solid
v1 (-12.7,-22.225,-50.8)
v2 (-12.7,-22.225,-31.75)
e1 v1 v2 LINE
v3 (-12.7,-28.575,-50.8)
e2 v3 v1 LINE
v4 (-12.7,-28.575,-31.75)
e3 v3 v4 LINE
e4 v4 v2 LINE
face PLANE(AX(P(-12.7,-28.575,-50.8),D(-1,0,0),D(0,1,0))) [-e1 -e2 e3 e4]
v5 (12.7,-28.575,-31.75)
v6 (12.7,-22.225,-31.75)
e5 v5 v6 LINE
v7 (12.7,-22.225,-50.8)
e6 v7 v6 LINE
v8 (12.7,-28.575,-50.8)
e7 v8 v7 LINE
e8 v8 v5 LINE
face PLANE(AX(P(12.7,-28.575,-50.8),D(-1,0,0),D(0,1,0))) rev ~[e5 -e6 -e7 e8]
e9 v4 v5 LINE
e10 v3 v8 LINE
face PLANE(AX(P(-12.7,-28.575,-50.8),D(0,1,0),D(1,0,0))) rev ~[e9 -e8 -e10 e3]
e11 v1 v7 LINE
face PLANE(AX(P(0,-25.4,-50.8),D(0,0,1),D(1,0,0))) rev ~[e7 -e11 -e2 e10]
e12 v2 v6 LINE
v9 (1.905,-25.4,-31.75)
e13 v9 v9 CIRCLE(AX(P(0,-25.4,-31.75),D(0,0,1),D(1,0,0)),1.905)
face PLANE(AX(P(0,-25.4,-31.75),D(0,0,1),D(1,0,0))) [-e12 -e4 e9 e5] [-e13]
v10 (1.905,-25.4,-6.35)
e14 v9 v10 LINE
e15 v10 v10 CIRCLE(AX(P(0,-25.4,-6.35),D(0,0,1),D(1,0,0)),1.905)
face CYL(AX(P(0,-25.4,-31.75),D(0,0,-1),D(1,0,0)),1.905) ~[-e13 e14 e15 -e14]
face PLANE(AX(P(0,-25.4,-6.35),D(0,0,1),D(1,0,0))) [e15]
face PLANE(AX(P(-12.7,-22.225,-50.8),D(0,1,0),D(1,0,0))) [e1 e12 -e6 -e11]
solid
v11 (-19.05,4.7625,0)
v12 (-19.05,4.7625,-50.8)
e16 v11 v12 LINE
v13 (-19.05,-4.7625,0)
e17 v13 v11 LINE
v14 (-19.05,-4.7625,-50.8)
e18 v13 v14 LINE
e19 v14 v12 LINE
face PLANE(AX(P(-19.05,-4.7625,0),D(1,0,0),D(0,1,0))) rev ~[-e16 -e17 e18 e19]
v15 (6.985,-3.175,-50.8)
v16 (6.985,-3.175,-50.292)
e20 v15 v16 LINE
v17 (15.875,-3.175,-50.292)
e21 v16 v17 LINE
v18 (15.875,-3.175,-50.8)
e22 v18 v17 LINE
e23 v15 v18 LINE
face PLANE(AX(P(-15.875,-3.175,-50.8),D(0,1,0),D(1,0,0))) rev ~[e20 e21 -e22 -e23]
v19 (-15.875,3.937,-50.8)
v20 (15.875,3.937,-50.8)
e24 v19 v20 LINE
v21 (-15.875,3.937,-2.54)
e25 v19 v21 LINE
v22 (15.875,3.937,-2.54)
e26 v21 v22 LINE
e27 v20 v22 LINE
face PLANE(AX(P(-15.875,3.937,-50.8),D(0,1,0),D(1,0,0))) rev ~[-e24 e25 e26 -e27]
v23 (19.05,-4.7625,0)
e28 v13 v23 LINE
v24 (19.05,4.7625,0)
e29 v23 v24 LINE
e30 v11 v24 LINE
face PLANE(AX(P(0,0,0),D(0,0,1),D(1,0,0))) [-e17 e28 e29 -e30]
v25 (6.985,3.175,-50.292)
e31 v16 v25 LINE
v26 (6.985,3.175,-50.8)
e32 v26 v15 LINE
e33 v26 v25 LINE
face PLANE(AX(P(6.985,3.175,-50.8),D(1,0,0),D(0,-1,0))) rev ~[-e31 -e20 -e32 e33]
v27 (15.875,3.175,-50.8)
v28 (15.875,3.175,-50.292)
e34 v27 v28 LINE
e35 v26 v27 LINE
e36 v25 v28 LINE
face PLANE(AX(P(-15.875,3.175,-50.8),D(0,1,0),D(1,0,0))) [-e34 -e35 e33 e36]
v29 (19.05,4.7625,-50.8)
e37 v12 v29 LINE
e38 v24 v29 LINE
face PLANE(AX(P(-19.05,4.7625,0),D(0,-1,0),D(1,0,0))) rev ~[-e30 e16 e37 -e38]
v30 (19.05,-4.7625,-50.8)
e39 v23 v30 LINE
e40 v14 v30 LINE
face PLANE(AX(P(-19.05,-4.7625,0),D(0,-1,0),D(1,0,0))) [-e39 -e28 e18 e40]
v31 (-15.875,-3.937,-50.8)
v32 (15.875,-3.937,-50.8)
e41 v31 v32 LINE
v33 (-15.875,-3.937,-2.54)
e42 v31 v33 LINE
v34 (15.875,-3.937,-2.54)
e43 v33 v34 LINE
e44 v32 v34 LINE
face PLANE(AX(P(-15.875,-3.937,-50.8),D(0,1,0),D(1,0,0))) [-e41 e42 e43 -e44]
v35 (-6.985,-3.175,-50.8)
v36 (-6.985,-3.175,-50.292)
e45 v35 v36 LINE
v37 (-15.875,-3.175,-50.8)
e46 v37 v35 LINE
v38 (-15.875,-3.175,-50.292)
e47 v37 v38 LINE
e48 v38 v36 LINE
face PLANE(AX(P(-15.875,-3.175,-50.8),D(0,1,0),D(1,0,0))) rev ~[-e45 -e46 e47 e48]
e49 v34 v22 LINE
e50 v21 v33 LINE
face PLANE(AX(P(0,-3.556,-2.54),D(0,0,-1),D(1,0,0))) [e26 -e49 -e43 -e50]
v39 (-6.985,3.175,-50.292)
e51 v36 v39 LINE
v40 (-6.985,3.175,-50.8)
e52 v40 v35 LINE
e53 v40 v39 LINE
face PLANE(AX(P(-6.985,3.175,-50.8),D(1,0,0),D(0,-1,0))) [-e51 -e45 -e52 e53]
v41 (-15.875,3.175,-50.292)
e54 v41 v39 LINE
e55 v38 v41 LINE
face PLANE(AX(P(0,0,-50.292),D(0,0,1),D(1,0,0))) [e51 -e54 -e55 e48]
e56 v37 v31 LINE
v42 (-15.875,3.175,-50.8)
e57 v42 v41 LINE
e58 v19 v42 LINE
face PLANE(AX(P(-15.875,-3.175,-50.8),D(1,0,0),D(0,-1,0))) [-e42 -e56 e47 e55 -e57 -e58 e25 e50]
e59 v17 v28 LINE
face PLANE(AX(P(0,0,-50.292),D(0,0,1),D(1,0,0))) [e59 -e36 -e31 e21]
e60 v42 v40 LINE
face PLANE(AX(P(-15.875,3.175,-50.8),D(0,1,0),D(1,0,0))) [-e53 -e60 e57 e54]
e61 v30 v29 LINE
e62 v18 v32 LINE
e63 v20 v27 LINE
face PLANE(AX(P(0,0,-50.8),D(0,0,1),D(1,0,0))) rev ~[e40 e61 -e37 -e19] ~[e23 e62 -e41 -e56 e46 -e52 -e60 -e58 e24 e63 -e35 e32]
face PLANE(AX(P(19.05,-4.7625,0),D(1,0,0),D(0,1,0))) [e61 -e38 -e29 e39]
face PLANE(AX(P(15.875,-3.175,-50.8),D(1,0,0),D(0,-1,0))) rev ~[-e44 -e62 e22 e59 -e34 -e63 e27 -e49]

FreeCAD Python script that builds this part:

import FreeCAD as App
import Part
import Sketcher
Q = App.Units.Quantity

doc = App.newDocument("Part")
body = doc.addObject("PartDesign::Body", "Body")

sketch1 = body.newObject("Sketcher::SketchObject", "Sketch")
sketch1.AttachmentSupport = (doc.getObject("XY_Plane"), [""])
sketch1.MapMode = "FlatFace"
sketch1.addGeometry([
    Part.LineSegment(App.Vector(-19, 5, 0), App.Vector(-19, -5, 0)),
    Part.LineSegment(App.Vector(-19, -5, 0), App.Vector(19, -5, 0)),
    Part.LineSegment(App.Vector(19, -5, 0), App.Vector(19, 5, 0)),
    Part.LineSegment(App.Vector(19, 5, 0), App.Vector(-19, 5, 0)),
], False)
sketch1.addConstraint([
    Sketcher.Constraint("Coincident", 0, 2, 1, 1),
    Sketcher.Constraint("Coincident", 1, 2, 2, 1),
    Sketcher.Constraint("Coincident", 2, 2, 3, 1),
    Sketcher.Constraint("Coincident", 3, 2, 0, 1),
    Sketcher.Constraint("Vertical", 0),
    Sketcher.Constraint("Horizontal", 1),
    Sketcher.Constraint("Vertical", 2),
    Sketcher.Constraint("Horizontal", 3),
    Sketcher.Constraint("Symmetric", 0, 2, 2, 2, -1, 1),
    Sketcher.Constraint("DistanceX", 1, 1, 1, 2, Q("1.5 in")),
    Sketcher.Constraint("DistanceY", 0, 2, 0, 1, Q("0.375 in")),
])
pad1 = body.newObject("PartDesign::Pad", "Pad")
pad1.Profile = sketch1
pad1.Length = Q("2 in")
pad1.Reversed = True

sketch2 = body.newObject("Sketcher::SketchObject", "Sketch001")
sketch2.AttachmentSupport = (doc.getObject("XY_Plane"), [""])
sketch2.MapMode = "FlatFace"
sketch2.AttachmentOffset = App.Placement(App.Vector(0, 0, -0.1 * 25.4), App.Rotation())
sketch2.addGeometry([
    Part.LineSegment(App.Vector(-16, 3, 0), App.Vector(-16, -3, 0)),
    Part.LineSegment(App.Vector(-16, -3, 0), App.Vector(16, -3, 0)),
    Part.LineSegment(App.Vector(16, -3, 0), App.Vector(16, 3, 0)),
    Part.LineSegment(App.Vector(16, 3, 0), App.Vector(-16, 3, 0)),
], False)
sketch2.addConstraint([
    Sketcher.Constraint("Coincident", 0, 2, 1, 1),
    Sketcher.Constraint("Coincident", 1, 2, 2, 1),
    Sketcher.Constraint("Coincident", 2, 2, 3, 1),
    Sketcher.Constraint("Coincident", 3, 2, 0, 1),
    Sketcher.Constraint("Vertical", 0),
    Sketcher.Constraint("Horizontal", 1),
    Sketcher.Constraint("Vertical", 2),
    Sketcher.Constraint("Horizontal", 3),
    Sketcher.Constraint("Symmetric", 0, 2, 2, 2, -1, 1),
    Sketcher.Constraint("DistanceX", 1, 1, 1, 2, Q("1.25 in")),
    Sketcher.Constraint("DistanceY", 0, 2, 0, 1, Q("0.25 in")),
])
pocket1 = body.newObject("PartDesign::Pocket", "Pocket")
pocket1.Profile = sketch2
pocket1.Length = Q("1.88 in")

sketch3 = body.newObject("Sketcher::SketchObject", "Sketch002")
sketch3.AttachmentSupport = (doc.getObject("XY_Plane"), [""])
sketch3.MapMode = "FlatFace"
sketch3.AttachmentOffset = App.Placement(App.Vector(0, 0, -2 * 25.4), App.Rotation())
sketch3.addGeometry([
    Part.LineSegment(App.Vector(-7, -3, 0), App.Vector(-7, 3, 0)),
    Part.LineSegment(App.Vector(-7, 3, 0), App.Vector(7, 3, 0)),
    Part.LineSegment(App.Vector(7, 3, 0), App.Vector(7, -3, 0)),
    Part.LineSegment(App.Vector(7, -3, 0), App.Vector(-7, -3, 0)),
], False)
sketch3.addConstraint([
    Sketcher.Constraint("Coincident", 0, 2, 1, 1),
    Sketcher.Constraint("Coincident", 1, 2, 2, 1),
    Sketcher.Constraint("Coincident", 2, 2, 3, 1),
    Sketcher.Constraint("Coincident", 3, 2, 0, 1),
    Sketcher.Constraint("Vertical", 0),
    Sketcher.Constraint("Horizontal", 1),
    Sketcher.Constraint("Vertical", 2),
    Sketcher.Constraint("Horizontal", 3),
    Sketcher.Constraint("Symmetric", 0, 2, 2, 2, -1, 1),
    Sketcher.Constraint("DistanceX", 1, 1, 1, 2, Q("0.55 in")),
    Sketcher.Constraint("DistanceY", 0, 1, 0, 2, Q("0.25 in")),
])
pocket2 = body.newObject("PartDesign::Pocket", "Pocket001")
pocket2.Profile = sketch3
pocket2.Length = Q("1 in")
pocket2.Reversed = True

sketch4 = body.newObject("Sketcher::SketchObject", "Sketch003")
sketch4.AttachmentSupport = (doc.getObject("XY_Plane"), [""])
sketch4.MapMode = "FlatFace"
sketch4.AttachmentOffset = App.Placement(App.Vector(0, 0, -2 * 25.4), App.Rotation())
sketch4.addGeometry([
    Part.LineSegment(App.Vector(-15.9, -3.9, 0), App.Vector(-15.9, -3.2, 0)),
    Part.LineSegment(App.Vector(-15.9, -3.2, 0), App.Vector(15.9, -3.2, 0)),
    Part.LineSegment(App.Vector(15.9, -3.2, 0), App.Vector(15.9, -3.9, 0)),
    Part.LineSegment(App.Vector(15.9, -3.9, 0), App.Vector(-15.9, -3.9, 0)),
    Part.LineSegment(App.Vector(-15.9, 3.2, 0), App.Vector(-15.9, 3.9, 0)),
    Part.LineSegment(App.Vector(-15.9, 3.9, 0), App.Vector(15.9, 3.9, 0)),
    Part.LineSegment(App.Vector(15.9, 3.9, 0), App.Vector(15.9, 3.2, 0)),
    Part.LineSegment(App.Vector(15.9, 3.2, 0), App.Vector(-15.9, 3.2, 0)),
], False)
sketch4.addConstraint([
    Sketcher.Constraint("Coincident", 0, 2, 1, 1),
    Sketcher.Constraint("Coincident", 1, 2, 2, 1),
    Sketcher.Constraint("Coincident", 2, 2, 3, 1),
    Sketcher.Constraint("Coincident", 3, 2, 0, 1),
    Sketcher.Constraint("Coincident", 4, 2, 5, 1),
    Sketcher.Constraint("Coincident", 5, 2, 6, 1),
    Sketcher.Constraint("Coincident", 6, 2, 7, 1),
    Sketcher.Constraint("Coincident", 7, 2, 4, 1),
    Sketcher.Constraint("Vertical", 0),
    Sketcher.Constraint("Horizontal", 1),
    Sketcher.Constraint("Vertical", 2),
    Sketcher.Constraint("Horizontal", 3),
    Sketcher.Constraint("Vertical", 4),
    Sketcher.Constraint("Horizontal", 5),
    Sketcher.Constraint("Vertical", 6),
    Sketcher.Constraint("Horizontal", 7),
    Sketcher.Constraint("Symmetric", 2, 2, 4, 2, -1, 1),
    Sketcher.Constraint("Symmetric", 0, 2, 6, 2, -1, 1),
    Sketcher.Constraint("Vertical", 3, 2, 4, 2),
    Sketcher.Constraint("DistanceX", 1, 1, 1, 2, Q("1.25 in")),
    Sketcher.Constraint("DistanceY", 0, 1, 0, 2, Q("0.03 in")),
    Sketcher.Constraint("DistanceY", 0, 2, 4, 2, Q("0.28 in")),
])
pocket3 = body.newObject("PartDesign::Pocket", "Pocket002")
pocket3.Profile = sketch4
pocket3.Length = Q("1.9 in")
pocket3.Reversed = True
body2 = doc.addObject("PartDesign::Body", "Body001")

sketch5 = body2.newObject("Sketcher::SketchObject", "Sketch004")
sketch5.AttachmentSupport = (doc.getObject("XY_Plane001"), [""])
sketch5.MapMode = "FlatFace"
sketch5.AttachmentOffset = App.Placement(App.Vector(0, 0, -2 * 25.4), App.Rotation())
sketch5.addGeometry([
    Part.LineSegment(App.Vector(-13, -22, 0), App.Vector(-13, -29, 0)),
    Part.LineSegment(App.Vector(-13, -29, 0), App.Vector(13, -29, 0)),
    Part.LineSegment(App.Vector(13, -29, 0), App.Vector(13, -22, 0)),
    Part.LineSegment(App.Vector(13, -22, 0), App.Vector(-13, -22, 0)),
], False)
sketch5.addConstraint([
    Sketcher.Constraint("Coincident", 0, 2, 1, 1),
    Sketcher.Constraint("Coincident", 1, 2, 2, 1),
    Sketcher.Constraint("Coincident", 2, 2, 3, 1),
    Sketcher.Constraint("Coincident", 3, 2, 0, 1),
    Sketcher.Constraint("Vertical", 0),
    Sketcher.Constraint("Horizontal", 1),
    Sketcher.Constraint("Vertical", 2),
    Sketcher.Constraint("Horizontal", 3),
    Sketcher.Constraint("DistanceX", 1, 1, 1, 2, Q("1 in")),
    Sketcher.Constraint("DistanceY", 0, 2, 0, 1, Q("0.25 in")),
    Sketcher.Constraint("DistanceX", 0, 2, -1, 1, Q("0.5 in")),
    Sketcher.Constraint("DistanceY", 0, 2, -1, 1, Q("1.125 in")),
])
pad2 = body2.newObject("PartDesign::Pad", "Pad001")
pad2.Profile = sketch5
pad2.Length = Q("0.75 in")

sketch6 = body2.newObject("Sketcher::SketchObject", "Sketch005")
sketch6.AttachmentSupport = (doc.getObject("XY_Plane001"), [""])
sketch6.MapMode = "FlatFace"
sketch6.AttachmentOffset = App.Placement(App.Vector(0, 0, -1.25 * 25.4), App.Rotation())
sketch6.addGeometry(Part.Circle(App.Vector(0, -25.4, 0), App.Vector(0, 0, 1), 1.9), False)
sketch6.addConstraint([
    Sketcher.Constraint("PointOnObject", 0, 3, -2),
    Sketcher.Constraint("Diameter", 0, Q("0.15 in")),
    Sketcher.Constraint("DistanceY", 0, 3, -1, 1, Q("1 in")),
])
pad3 = body2.newObject("PartDesign::Pad", "Pad002")
pad3.Profile = sketch6
pad3.Length = Q("1 in")

doc.recompute()
